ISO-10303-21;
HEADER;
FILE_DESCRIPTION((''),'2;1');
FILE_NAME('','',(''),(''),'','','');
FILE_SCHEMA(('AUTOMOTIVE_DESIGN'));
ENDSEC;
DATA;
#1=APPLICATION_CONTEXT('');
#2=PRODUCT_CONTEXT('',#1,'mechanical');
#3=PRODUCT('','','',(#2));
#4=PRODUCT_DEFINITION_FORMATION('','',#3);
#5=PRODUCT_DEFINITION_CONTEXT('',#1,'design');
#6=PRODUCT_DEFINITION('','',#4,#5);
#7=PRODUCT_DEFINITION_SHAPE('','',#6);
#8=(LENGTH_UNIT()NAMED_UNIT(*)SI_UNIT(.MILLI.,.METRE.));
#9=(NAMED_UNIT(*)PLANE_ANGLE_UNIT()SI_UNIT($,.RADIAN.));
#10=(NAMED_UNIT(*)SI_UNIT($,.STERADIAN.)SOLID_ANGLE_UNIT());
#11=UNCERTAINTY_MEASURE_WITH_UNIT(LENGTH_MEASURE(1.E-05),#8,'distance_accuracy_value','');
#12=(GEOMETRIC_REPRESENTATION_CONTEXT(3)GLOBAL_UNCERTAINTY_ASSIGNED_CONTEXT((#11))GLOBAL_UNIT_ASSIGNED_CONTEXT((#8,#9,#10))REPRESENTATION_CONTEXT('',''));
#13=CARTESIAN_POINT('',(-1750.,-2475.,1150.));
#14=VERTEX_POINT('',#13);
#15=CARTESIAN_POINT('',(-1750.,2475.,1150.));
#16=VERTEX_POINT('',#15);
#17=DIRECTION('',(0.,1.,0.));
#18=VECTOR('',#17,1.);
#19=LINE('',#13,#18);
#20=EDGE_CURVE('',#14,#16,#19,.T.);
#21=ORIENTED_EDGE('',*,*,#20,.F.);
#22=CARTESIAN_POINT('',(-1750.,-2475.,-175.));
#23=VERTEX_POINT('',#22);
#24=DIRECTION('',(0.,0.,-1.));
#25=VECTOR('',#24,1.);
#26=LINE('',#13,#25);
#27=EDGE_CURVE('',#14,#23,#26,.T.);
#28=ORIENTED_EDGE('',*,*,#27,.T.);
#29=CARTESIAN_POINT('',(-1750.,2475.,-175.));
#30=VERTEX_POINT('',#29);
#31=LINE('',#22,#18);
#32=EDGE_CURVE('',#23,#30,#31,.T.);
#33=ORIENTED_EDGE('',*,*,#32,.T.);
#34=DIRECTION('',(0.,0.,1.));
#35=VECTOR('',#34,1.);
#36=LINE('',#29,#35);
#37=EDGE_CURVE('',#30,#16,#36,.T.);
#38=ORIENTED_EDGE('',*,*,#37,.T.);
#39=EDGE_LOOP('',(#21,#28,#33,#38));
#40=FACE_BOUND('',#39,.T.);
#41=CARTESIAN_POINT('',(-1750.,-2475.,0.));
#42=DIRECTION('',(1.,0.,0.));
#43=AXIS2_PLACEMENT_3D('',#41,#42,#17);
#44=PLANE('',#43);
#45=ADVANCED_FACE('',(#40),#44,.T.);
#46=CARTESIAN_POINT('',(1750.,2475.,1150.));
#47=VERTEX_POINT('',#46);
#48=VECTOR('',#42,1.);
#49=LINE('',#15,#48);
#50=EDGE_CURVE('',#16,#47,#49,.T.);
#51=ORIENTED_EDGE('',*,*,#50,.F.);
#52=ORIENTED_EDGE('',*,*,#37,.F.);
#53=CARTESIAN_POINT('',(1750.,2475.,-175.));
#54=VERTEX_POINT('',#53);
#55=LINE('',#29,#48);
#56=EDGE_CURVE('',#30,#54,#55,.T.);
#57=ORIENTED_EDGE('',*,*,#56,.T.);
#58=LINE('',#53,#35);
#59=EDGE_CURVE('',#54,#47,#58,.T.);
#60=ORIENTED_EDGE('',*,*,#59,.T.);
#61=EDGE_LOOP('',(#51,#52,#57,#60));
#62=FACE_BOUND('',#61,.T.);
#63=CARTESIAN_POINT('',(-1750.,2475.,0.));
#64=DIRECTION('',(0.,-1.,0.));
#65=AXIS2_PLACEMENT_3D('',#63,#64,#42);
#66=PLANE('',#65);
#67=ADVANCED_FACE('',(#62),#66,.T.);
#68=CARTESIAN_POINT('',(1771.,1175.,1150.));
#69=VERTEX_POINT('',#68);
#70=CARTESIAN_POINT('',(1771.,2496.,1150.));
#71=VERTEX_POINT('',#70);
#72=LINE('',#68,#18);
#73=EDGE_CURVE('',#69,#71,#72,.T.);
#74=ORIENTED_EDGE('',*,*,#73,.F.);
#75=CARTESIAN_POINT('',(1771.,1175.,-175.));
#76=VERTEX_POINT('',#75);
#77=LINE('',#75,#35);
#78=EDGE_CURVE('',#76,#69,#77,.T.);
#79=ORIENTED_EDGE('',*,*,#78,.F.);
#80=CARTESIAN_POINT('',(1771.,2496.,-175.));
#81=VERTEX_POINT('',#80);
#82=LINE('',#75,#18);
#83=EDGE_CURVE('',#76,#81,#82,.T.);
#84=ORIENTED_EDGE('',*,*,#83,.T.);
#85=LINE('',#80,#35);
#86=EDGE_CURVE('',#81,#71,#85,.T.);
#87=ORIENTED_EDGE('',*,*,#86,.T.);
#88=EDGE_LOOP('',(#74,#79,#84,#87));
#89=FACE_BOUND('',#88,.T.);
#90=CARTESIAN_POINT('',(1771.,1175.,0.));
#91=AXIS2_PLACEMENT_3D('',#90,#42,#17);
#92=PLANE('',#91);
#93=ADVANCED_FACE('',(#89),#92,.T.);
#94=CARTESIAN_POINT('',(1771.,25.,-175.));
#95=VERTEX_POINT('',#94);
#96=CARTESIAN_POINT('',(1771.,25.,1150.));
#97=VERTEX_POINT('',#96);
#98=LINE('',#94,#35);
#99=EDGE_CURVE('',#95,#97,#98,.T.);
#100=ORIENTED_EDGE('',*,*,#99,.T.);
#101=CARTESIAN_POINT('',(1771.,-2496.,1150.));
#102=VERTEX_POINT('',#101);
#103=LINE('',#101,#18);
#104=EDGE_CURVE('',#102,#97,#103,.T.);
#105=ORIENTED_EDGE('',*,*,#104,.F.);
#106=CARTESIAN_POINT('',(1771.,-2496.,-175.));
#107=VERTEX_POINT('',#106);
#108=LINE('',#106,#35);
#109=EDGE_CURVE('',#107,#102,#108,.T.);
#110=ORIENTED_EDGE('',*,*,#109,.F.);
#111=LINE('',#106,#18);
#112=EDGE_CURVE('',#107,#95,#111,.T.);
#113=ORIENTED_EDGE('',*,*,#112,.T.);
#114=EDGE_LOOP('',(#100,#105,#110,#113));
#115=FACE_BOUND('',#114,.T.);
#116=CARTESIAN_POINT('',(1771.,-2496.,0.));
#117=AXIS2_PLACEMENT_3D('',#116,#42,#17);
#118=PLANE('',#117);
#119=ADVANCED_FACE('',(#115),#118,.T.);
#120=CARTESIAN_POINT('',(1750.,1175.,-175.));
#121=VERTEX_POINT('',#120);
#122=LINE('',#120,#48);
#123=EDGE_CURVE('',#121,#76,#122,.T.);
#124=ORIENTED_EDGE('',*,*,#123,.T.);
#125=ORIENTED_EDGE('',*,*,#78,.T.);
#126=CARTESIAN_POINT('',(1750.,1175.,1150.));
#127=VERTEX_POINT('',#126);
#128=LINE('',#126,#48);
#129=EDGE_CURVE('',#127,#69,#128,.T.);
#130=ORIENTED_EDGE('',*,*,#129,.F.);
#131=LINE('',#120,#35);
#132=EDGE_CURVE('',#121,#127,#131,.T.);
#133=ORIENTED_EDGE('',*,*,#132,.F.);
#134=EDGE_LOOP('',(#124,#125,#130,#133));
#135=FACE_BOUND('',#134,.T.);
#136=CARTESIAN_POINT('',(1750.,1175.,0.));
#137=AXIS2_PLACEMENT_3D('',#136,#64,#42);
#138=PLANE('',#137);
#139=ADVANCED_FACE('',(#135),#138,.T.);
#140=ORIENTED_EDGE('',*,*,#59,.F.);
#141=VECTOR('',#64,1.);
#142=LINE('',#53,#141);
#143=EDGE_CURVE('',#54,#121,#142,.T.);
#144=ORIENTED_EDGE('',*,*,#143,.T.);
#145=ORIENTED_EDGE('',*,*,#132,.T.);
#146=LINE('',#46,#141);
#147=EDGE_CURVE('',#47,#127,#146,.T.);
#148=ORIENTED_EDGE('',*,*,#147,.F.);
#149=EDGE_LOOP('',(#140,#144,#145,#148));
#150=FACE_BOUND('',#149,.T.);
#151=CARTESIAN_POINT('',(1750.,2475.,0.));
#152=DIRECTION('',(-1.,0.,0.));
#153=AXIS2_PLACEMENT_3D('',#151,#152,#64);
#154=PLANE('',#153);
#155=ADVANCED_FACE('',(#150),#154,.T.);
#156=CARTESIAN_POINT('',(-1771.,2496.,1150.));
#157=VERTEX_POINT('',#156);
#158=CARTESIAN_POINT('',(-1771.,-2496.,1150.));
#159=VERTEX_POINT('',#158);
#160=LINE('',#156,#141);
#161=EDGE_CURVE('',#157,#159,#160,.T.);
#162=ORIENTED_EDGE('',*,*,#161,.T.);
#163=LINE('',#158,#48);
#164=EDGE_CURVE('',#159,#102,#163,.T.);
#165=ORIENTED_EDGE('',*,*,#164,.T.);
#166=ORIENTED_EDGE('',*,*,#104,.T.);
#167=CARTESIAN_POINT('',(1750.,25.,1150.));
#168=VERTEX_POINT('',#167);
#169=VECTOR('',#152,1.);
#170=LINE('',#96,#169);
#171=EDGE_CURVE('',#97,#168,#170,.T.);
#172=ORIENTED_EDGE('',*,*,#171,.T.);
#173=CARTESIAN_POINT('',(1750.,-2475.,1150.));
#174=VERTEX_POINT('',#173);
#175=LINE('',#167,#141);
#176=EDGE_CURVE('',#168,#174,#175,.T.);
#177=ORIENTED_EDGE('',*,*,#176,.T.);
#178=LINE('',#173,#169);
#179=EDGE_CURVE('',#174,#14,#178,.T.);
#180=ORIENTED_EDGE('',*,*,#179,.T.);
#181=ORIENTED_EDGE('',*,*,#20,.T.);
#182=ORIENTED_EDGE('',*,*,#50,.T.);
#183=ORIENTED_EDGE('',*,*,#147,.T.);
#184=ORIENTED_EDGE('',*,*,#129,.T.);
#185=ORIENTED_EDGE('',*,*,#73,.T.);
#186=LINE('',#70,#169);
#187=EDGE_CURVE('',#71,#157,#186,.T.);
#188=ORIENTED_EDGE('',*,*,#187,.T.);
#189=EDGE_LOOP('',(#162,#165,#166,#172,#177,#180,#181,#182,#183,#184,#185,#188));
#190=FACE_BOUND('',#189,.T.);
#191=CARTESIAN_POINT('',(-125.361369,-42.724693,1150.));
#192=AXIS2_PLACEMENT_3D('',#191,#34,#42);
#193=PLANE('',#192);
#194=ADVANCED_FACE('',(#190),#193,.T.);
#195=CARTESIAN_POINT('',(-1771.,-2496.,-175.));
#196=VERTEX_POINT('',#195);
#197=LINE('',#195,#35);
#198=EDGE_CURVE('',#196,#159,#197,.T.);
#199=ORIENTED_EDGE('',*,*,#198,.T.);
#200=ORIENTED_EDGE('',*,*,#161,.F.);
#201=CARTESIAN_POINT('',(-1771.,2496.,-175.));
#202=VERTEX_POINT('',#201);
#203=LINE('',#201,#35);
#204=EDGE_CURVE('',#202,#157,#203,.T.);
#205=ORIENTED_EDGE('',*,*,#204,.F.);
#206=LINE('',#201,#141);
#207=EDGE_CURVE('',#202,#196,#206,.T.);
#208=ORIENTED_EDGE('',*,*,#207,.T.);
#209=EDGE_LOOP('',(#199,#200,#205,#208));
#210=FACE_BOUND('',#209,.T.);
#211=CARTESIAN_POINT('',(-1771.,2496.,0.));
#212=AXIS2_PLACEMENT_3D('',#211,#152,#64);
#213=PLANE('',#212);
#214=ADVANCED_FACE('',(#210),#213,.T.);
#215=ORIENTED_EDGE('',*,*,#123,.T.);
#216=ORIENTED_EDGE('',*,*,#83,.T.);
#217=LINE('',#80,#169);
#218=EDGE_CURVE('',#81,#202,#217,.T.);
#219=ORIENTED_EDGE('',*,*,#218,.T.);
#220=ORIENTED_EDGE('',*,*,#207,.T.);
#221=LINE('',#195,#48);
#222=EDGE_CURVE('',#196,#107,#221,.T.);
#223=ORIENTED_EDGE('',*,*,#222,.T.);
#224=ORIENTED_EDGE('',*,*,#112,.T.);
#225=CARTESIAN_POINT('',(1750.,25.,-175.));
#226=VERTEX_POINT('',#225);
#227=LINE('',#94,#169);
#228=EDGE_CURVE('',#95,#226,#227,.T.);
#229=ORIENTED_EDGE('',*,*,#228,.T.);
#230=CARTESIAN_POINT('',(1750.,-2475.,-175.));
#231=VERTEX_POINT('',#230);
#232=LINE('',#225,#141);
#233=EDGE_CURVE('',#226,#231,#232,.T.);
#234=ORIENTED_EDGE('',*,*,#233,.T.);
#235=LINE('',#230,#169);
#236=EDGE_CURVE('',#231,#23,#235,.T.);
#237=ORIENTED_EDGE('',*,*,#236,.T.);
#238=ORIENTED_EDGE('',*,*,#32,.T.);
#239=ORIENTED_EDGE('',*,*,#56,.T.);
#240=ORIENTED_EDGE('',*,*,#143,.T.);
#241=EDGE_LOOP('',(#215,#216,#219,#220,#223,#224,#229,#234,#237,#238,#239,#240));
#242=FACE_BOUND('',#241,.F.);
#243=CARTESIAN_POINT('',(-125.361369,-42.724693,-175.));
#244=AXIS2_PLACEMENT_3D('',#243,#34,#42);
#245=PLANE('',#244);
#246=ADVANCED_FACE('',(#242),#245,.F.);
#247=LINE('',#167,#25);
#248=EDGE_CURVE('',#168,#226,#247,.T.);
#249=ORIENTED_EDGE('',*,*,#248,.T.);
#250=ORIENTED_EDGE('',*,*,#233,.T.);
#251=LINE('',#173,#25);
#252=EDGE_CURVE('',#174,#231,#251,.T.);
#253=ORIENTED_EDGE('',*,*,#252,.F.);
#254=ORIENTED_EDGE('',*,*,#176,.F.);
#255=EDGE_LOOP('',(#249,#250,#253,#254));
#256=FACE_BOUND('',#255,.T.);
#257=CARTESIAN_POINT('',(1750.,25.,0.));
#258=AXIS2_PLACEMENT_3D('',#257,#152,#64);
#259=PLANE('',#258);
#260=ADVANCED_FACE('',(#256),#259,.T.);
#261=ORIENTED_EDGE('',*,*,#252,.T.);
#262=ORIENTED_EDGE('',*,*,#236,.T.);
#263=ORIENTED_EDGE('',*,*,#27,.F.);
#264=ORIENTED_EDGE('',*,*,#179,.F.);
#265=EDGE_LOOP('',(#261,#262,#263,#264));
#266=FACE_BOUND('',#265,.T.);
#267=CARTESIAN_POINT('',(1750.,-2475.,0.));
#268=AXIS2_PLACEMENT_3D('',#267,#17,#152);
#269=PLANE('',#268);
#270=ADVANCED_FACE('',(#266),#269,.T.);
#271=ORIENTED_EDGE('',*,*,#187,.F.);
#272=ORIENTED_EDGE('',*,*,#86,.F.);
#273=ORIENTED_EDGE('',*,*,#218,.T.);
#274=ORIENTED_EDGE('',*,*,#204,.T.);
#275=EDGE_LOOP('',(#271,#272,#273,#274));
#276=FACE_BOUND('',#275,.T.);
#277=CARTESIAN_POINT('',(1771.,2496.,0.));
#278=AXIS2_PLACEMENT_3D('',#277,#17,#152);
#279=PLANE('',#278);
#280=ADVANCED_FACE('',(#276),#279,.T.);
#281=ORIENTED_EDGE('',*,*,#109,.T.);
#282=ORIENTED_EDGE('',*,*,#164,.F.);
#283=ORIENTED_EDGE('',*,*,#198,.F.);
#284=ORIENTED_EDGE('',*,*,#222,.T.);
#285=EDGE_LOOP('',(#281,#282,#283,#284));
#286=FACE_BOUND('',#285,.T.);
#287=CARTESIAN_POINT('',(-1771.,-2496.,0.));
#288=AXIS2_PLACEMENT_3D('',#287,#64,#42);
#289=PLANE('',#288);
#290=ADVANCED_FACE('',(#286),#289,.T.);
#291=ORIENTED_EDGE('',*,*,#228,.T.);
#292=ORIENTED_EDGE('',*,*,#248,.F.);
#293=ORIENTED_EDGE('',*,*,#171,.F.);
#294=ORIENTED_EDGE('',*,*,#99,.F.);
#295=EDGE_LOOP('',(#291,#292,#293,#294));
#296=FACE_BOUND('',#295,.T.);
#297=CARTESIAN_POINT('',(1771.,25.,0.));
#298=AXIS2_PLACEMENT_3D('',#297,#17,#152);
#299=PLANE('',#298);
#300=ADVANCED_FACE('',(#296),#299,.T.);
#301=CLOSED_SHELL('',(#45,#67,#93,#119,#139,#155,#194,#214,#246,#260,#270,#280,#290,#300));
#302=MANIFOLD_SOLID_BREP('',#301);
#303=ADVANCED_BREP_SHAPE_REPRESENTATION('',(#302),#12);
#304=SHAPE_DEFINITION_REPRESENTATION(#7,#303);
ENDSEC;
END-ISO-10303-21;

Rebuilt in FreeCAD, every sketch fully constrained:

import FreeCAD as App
import Part
import Sketcher
from FreeCAD import Vector
Q = App.Units.Quantity

doc = App.newDocument("Part")
body = doc.addObject("PartDesign::Body", "Body")

# Sketch on XY plane
sketch1 = body.newObject("Sketcher::SketchObject", "Sketch")
sketch1.AttachmentSupport = (doc.getObject("XY_Plane"), [""])
sketch1.MapMode = "FlatFace"
sketch1.addGeometry(Part.LineSegment(Vector(-1750, -2475, 0), Vector(-1750, 2475, 0)), False)
sketch1.addGeometry(Part.LineSegment(Vector(-1750, 2475, 0), Vector(1750, 2475, 0)), False)
sketch1.addGeometry(Part.LineSegment(Vector(1750, 2475, 0), Vector(1750, 1175, 0)), False)
sketch1.addGeometry(Part.LineSegment(Vector(1750, 1175, 0), Vector(1771, 1175, 0)), False)
sketch1.addGeometry(Part.LineSegment(Vector(1771, 1175, 0), Vector(1771, 2496, 0)), False)
sketch1.addGeometry(Part.LineSegment(Vector(1771, 2496, 0), Vector(-1771, 2496, 0)), False)
sketch1.addGeometry(Part.LineSegment(Vector(-1771, 2496, 0), Vector(-1771, -2496, 0)), False)
sketch1.addGeometry(Part.LineSegment(Vector(-1771, -2496, 0), Vector(1771, -2496, 0)), False)
sketch1.addGeometry(Part.LineSegment(Vector(1771, -2496, 0), Vector(1771, 25, 0)), False)
sketch1.addGeometry(Part.LineSegment(Vector(1771, 25, 0), Vector(1750, 25, 0)), False)
sketch1.addGeometry(Part.LineSegment(Vector(1750, 25, 0), Vector(1750, -2475, 0)), False)
sketch1.addGeometry(Part.LineSegment(Vector(1750, -2475, 0), Vector(-1750, -2475, 0)), False)
sketch1.addConstraint(Sketcher.Constraint("Coincident", 0, 2, 1, 1))
sketch1.addConstraint(Sketcher.Constraint("Coincident", 1, 2, 2, 1))
sketch1.addConstraint(Sketcher.Constraint("Coincident", 2, 2, 3, 1))
sketch1.addConstraint(Sketcher.Constraint("Coincident", 3, 2, 4, 1))
sketch1.addConstraint(Sketcher.Constraint("Coincident", 4, 2, 5, 1))
sketch1.addConstraint(Sketcher.Constraint("Coincident", 5, 2, 6, 1))
sketch1.addConstraint(Sketcher.Constraint("Coincident", 6, 2, 7, 1))
sketch1.addConstraint(Sketcher.Constraint("Coincident", 7, 2, 8, 1))
sketch1.addConstraint(Sketcher.Constraint("Coincident", 8, 2, 9, 1))
sketch1.addConstraint(Sketcher.Constraint("Coincident", 9, 2, 10, 1))
sketch1.addConstraint(Sketcher.Constraint("Coincident", 10, 2, 11, 1))
sketch1.addConstraint(Sketcher.Constraint("Coincident", 11, 2, 0, 1))
sketch1.addConstraint(Sketcher.Constraint("Vertical", 0))
sketch1.addConstraint(Sketcher.Constraint("Horizontal", 1))
sketch1.addConstraint(Sketcher.Constraint("Vertical", 2))
sketch1.addConstraint(Sketcher.Constraint("Horizontal", 3))
sketch1.addConstraint(Sketcher.Constraint("Vertical", 4))
sketch1.addConstraint(Sketcher.Constraint("Horizontal", 5))
sketch1.addConstraint(Sketcher.Constraint("Vertical", 6))
sketch1.addConstraint(Sketcher.Constraint("Horizontal", 7))
sketch1.addConstraint(Sketcher.Constraint("Vertical", 8))
sketch1.addConstraint(Sketcher.Constraint("Horizontal", 9))
sketch1.addConstraint(Sketcher.Constraint("Vertical", 10))
sketch1.addConstraint(Sketcher.Constraint("Horizontal", 11))
sketch1.addConstraint(Sketcher.Constraint("Symmetric", 4, 2, 6, 2, -1, 1))
sketch1.addConstraint(Sketcher.Constraint("Symmetric", 0, 2, 10, 2, -1, 1))
sketch1.addConstraint(Sketcher.Constraint("Vertical", 4, 2, 7, 2))
sketch1.addConstraint(Sketcher.Constraint("Vertical", 2, 2, 9, 2))
sketch1.addConstraint(Sketcher.Constraint("DistanceX", 1, 1, 1, 2, Q("3500 mm")))
sketch1.addConstraint(Sketcher.Constraint("DistanceX", 3, 1, 3, 2, Q("21 mm")))
sketch1.addConstraint(Sketcher.Constraint("DistanceY", 0, 1, 0, 2, Q("4950 mm")))
sketch1.addConstraint(Sketcher.Constraint("DistanceY", 2, 2, 2, 1, Q("1300 mm")))
sketch1.addConstraint(Sketcher.Constraint("DistanceY", 4, 1, 4, 2, Q("1321 mm")))
sketch1.addConstraint(Sketcher.Constraint("DistanceY", 8, 1, 8, 2, Q("2521 mm")))
pad1 = body.newObject("PartDesign::Pad", "Pad")
pad1.Profile = sketch1
pad1.Type = "TwoLengths"
pad1.Length = 1150
pad1.Length2 = 175

doc.recompute()
